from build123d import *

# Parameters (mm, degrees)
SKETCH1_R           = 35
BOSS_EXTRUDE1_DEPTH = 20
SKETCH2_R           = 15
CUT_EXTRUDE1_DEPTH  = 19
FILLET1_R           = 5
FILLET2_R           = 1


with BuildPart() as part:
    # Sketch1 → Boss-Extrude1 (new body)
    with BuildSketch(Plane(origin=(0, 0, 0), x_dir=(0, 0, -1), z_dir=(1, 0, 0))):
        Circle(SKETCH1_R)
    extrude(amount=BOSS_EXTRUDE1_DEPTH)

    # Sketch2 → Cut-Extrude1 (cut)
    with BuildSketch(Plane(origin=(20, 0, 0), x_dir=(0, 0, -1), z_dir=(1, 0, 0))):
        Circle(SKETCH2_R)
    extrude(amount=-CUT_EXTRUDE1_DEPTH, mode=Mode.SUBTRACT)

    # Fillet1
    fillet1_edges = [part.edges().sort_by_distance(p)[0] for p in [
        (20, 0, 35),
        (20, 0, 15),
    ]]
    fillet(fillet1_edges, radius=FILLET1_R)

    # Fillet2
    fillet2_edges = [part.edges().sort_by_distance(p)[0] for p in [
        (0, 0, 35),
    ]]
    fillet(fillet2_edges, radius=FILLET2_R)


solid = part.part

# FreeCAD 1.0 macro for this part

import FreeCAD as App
import Part
import Sketcher

V = App.Vector
Q = App.Units.Quantity


def edges_at(feature, points):
    """Names of the edges that pass closest to the given points."""
    edges = feature.Shape.Edges
    near = lambda p: min(range(len(edges)), key=lambda i: edges[i].distToShape(Part.Vertex(*p))[0])
    return sorted({f"Edge{near(p) + 1}" for p in points})

doc = App.newDocument("Part")
body = doc.addObject("PartDesign::Body", "Body")

# Sketch on YZ plane
sketch1 = body.newObject("Sketcher::SketchObject", "Sketch")
sketch1.AttachmentSupport = (doc.getObject("YZ_Plane"), [""])
sketch1.MapMode = "FlatFace"
sketch1.addGeometry(Part.Circle(V(0, 0, 0), V(0, 0, 1), 35), False)
sketch1.addConstraint(Sketcher.Constraint("Coincident", 0, 3, -1, 1))
sketch1.addConstraint(Sketcher.Constraint("Diameter", 0, Q("70 mm")))
pad1 = body.newObject("PartDesign::Pad", "Pad")
pad1.Profile = sketch1
pad1.Length = 20

# Sketch on YZ plane
sketch2 = body.newObject("Sketcher::SketchObject", "Sketch001")
sketch2.AttachmentSupport = (doc.getObject("YZ_Plane"), [""])
sketch2.MapMode = "FlatFace"
sketch2.AttachmentOffset = App.Placement(V(0, 0, 20), App.Rotation())
sketch2.addGeometry(Part.Circle(V(0, 0, 0), V(0, 0, 1), 15), False)
sketch2.addConstraint(Sketcher.Constraint("Coincident", 0, 3, -1, 1))
sketch2.addConstraint(Sketcher.Constraint("Diameter", 0, Q("30 mm")))
pocket1 = body.newObject("PartDesign::Pocket", "Pocket")
pocket1.Profile = sketch2
pocket1.Length = 19
doc.recompute()

fillet = body.newObject("PartDesign::Fillet", "Fillet")
fillet.Base = (pocket1, edges_at(pocket1, [(20, 0, 35), (20, 0, 15)]))
fillet.Radius = 5
doc.recompute()

fillet2 = body.newObject("PartDesign::Fillet", "Fillet001")
fillet2.Base = (fillet, edges_at(fillet, [(0, 0, 35)]))
fillet2.Radius = 1

doc.recompute()
